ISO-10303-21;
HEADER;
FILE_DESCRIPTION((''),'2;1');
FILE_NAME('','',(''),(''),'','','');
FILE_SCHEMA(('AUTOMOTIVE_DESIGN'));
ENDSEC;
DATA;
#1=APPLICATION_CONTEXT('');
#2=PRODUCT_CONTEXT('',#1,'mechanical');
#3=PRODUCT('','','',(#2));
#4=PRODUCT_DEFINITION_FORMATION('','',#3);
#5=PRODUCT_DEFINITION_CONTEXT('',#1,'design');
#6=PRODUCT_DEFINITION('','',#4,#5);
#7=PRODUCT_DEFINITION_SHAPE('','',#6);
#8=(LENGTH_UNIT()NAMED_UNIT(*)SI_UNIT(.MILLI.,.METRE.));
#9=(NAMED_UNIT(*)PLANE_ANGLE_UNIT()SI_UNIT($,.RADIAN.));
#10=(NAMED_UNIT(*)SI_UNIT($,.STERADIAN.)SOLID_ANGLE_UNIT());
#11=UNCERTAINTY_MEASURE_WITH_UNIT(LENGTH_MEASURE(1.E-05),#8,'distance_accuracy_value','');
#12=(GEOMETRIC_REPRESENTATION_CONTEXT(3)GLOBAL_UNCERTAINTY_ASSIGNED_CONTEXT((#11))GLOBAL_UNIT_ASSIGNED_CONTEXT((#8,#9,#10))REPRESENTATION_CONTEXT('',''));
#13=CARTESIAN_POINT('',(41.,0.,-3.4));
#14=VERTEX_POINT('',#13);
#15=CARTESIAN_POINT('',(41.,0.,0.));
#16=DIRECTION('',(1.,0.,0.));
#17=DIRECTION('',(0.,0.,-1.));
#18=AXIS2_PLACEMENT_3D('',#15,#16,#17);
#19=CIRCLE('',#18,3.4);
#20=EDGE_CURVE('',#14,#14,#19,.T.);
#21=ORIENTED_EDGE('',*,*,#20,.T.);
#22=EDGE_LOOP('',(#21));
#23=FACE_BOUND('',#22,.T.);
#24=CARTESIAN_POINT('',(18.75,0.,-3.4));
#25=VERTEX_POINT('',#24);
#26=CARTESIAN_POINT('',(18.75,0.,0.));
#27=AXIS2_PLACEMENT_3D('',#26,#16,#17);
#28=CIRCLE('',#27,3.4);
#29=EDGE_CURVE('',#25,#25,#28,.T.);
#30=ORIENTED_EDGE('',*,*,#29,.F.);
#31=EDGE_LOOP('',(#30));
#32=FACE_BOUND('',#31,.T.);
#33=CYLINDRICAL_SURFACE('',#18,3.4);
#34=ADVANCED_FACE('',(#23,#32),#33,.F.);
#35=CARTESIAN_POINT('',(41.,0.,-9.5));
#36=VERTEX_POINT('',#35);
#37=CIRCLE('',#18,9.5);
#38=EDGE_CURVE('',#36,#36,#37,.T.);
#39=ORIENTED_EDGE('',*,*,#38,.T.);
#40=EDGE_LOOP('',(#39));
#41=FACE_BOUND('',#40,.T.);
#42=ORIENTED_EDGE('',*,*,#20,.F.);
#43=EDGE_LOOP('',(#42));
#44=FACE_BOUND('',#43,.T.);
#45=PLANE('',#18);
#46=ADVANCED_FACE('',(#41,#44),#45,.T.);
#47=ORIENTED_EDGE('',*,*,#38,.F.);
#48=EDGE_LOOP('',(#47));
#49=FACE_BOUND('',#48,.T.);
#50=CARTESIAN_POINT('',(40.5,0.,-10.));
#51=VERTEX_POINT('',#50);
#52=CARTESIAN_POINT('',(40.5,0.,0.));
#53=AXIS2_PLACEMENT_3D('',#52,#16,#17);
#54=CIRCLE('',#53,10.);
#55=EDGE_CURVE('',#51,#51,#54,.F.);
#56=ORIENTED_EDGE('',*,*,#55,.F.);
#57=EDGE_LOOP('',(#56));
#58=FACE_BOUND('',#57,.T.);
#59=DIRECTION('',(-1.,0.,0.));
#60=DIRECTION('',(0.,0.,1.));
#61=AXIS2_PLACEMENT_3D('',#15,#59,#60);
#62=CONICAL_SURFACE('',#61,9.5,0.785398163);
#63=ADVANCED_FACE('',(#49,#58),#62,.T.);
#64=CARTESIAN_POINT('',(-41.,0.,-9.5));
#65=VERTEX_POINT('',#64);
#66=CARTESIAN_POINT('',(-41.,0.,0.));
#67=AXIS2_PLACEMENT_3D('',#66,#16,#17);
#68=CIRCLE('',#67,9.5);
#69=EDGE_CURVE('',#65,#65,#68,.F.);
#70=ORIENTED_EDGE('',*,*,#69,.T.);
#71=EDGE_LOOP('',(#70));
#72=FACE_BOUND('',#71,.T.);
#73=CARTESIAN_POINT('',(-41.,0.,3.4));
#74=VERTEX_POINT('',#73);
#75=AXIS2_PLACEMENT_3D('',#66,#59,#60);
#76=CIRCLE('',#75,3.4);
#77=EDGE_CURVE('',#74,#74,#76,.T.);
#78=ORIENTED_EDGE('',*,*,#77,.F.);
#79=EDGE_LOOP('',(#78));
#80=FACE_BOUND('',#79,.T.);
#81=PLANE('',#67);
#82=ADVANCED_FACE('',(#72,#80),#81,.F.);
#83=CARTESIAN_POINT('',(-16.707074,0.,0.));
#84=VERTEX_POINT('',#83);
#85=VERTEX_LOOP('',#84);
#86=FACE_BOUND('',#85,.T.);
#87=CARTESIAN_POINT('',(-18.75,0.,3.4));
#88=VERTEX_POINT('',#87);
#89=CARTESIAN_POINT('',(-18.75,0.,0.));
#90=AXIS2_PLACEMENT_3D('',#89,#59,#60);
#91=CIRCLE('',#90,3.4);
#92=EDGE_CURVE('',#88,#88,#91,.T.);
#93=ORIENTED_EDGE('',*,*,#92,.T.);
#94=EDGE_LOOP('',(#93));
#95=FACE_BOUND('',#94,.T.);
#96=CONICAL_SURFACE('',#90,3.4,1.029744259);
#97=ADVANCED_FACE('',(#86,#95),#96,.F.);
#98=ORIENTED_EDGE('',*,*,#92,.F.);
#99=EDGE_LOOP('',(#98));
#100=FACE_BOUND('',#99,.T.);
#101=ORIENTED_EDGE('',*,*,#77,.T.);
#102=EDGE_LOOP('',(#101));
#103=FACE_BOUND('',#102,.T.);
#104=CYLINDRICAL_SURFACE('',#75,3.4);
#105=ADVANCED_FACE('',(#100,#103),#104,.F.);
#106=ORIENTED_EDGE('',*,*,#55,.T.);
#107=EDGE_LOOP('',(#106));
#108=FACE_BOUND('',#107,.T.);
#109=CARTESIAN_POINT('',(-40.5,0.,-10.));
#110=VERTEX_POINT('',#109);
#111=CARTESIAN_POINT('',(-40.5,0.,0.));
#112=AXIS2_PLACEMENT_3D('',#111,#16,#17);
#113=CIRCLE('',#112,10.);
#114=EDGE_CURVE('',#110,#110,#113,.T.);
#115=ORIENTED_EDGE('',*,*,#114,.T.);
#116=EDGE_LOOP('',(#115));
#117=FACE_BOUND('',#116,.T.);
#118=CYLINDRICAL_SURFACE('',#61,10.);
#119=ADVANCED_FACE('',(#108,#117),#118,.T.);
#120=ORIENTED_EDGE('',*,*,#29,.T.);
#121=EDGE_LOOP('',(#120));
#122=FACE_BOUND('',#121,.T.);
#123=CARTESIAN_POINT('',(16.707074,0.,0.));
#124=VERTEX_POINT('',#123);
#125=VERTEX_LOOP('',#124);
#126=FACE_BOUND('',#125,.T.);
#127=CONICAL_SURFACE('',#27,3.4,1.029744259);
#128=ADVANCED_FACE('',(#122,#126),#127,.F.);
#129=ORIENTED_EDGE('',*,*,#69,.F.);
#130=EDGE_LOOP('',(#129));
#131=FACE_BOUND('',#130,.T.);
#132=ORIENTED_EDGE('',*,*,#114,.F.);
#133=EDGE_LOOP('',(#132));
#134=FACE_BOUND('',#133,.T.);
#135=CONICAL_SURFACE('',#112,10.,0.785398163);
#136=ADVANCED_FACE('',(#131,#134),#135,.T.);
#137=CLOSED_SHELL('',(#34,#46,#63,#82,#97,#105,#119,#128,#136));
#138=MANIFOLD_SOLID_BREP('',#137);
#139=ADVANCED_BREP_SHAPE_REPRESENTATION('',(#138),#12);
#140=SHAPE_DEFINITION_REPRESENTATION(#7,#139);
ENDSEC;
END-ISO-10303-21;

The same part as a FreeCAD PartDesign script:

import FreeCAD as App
import Part
import Sketcher
from FreeCAD import Vector


def edges_at(feature, points):
    """Names of the edges that pass closest to the given points."""
    edges = feature.Shape.Edges
    near = lambda p: min(range(len(edges)), key=lambda i: edges[i].distToShape(Part.Vertex(*p))[0])
    return sorted({f"Edge{near(p) + 1}" for p in points})

doc = App.newDocument("Part")
body = doc.addObject("PartDesign::Body", "Body")

sketch1 = body.newObject("Sketcher::SketchObject", "Sketch")
sketch1.AttachmentSupport = (doc.getObject("YZ_Plane"), [""])
sketch1.MapMode = "FlatFace"
sketch1.addGeometry(Part.Circle(Vector(0, 0, 0), Vector(0, 0, 1), 10), False)
sketch1.addConstraint(Sketcher.Constraint("Coincident", 0, 3, -1, 1))
sketch1.addConstraint(Sketcher.Constraint("Diameter", 0, 20.0))
pad1 = body.newObject("PartDesign::Pad", "Pad")
pad1.Profile = sketch1
pad1.Length = 82
pad1.Midplane = True
doc.recompute()

chamfer = body.newObject("PartDesign::Chamfer", "Chamfer")
chamfer.Base = (pad1, edges_at(pad1, [(-41, 0, 10), (41, 0, 10)]))
chamfer.Size = 0.5

sketch2 = body.newObject("Sketcher::SketchObject", "Sketch001")
sketch2.AttachmentSupport = (doc.getObject("YZ_Plane"), [""])
sketch2.MapMode = "FlatFace"
sketch2.AttachmentOffset = App.Placement(Vector(0, 0, 41), App.Rotation())
sketch2.addGeometry(Part.Circle(Vector(0, 0, 0), Vector(0, 0, 1), 3.4), False)
sketch2.addConstraint(Sketcher.Constraint("Coincident", 0, 3, -1, 1))
sketch2.addConstraint(Sketcher.Constraint("Diameter", 0, 6.8))
doc.recompute()
hole = body.newObject("PartDesign::Hole", "Hole")
hole.Profile = sketch2
hole.ThreadType = "None"
hole.Diameter = 6.8
hole.DepthType = "Dimension"
hole.Depth = 22.25
hole.DrillPoint = "Angled"
hole.DrillPointAngle = 118

sketch3 = body.newObject("Sketcher::SketchObject", "Sketch002")
sketch3.AttachmentSupport = (doc.getObject("YZ_Plane"), [""])
sketch3.MapMode = "FlatFace"
sketch3.AttachmentOffset = App.Placement(Vector(0, 0, -41), App.Rotation())
sketch3.addGeometry(Part.Circle(Vector(0, 0, 0), Vector(0, 0, 1), 3.4), False)
sketch3.addConstraint(Sketcher.Constraint("Coincident", 0, 3, -1, 1))
sketch3.addConstraint(Sketcher.Constraint("Diameter", 0, 6.8))
doc.recompute()
hole2 = body.newObject("PartDesign::Hole", "Hole001")
hole2.Profile = sketch3
hole2.ThreadType = "None"
hole2.Diameter = 6.8
hole2.DepthType = "Dimension"
hole2.Depth = 22.25
hole2.DrillPoint = "Angled"
hole2.DrillPointAngle = 118
hole2.Reversed = True

doc.recompute()
